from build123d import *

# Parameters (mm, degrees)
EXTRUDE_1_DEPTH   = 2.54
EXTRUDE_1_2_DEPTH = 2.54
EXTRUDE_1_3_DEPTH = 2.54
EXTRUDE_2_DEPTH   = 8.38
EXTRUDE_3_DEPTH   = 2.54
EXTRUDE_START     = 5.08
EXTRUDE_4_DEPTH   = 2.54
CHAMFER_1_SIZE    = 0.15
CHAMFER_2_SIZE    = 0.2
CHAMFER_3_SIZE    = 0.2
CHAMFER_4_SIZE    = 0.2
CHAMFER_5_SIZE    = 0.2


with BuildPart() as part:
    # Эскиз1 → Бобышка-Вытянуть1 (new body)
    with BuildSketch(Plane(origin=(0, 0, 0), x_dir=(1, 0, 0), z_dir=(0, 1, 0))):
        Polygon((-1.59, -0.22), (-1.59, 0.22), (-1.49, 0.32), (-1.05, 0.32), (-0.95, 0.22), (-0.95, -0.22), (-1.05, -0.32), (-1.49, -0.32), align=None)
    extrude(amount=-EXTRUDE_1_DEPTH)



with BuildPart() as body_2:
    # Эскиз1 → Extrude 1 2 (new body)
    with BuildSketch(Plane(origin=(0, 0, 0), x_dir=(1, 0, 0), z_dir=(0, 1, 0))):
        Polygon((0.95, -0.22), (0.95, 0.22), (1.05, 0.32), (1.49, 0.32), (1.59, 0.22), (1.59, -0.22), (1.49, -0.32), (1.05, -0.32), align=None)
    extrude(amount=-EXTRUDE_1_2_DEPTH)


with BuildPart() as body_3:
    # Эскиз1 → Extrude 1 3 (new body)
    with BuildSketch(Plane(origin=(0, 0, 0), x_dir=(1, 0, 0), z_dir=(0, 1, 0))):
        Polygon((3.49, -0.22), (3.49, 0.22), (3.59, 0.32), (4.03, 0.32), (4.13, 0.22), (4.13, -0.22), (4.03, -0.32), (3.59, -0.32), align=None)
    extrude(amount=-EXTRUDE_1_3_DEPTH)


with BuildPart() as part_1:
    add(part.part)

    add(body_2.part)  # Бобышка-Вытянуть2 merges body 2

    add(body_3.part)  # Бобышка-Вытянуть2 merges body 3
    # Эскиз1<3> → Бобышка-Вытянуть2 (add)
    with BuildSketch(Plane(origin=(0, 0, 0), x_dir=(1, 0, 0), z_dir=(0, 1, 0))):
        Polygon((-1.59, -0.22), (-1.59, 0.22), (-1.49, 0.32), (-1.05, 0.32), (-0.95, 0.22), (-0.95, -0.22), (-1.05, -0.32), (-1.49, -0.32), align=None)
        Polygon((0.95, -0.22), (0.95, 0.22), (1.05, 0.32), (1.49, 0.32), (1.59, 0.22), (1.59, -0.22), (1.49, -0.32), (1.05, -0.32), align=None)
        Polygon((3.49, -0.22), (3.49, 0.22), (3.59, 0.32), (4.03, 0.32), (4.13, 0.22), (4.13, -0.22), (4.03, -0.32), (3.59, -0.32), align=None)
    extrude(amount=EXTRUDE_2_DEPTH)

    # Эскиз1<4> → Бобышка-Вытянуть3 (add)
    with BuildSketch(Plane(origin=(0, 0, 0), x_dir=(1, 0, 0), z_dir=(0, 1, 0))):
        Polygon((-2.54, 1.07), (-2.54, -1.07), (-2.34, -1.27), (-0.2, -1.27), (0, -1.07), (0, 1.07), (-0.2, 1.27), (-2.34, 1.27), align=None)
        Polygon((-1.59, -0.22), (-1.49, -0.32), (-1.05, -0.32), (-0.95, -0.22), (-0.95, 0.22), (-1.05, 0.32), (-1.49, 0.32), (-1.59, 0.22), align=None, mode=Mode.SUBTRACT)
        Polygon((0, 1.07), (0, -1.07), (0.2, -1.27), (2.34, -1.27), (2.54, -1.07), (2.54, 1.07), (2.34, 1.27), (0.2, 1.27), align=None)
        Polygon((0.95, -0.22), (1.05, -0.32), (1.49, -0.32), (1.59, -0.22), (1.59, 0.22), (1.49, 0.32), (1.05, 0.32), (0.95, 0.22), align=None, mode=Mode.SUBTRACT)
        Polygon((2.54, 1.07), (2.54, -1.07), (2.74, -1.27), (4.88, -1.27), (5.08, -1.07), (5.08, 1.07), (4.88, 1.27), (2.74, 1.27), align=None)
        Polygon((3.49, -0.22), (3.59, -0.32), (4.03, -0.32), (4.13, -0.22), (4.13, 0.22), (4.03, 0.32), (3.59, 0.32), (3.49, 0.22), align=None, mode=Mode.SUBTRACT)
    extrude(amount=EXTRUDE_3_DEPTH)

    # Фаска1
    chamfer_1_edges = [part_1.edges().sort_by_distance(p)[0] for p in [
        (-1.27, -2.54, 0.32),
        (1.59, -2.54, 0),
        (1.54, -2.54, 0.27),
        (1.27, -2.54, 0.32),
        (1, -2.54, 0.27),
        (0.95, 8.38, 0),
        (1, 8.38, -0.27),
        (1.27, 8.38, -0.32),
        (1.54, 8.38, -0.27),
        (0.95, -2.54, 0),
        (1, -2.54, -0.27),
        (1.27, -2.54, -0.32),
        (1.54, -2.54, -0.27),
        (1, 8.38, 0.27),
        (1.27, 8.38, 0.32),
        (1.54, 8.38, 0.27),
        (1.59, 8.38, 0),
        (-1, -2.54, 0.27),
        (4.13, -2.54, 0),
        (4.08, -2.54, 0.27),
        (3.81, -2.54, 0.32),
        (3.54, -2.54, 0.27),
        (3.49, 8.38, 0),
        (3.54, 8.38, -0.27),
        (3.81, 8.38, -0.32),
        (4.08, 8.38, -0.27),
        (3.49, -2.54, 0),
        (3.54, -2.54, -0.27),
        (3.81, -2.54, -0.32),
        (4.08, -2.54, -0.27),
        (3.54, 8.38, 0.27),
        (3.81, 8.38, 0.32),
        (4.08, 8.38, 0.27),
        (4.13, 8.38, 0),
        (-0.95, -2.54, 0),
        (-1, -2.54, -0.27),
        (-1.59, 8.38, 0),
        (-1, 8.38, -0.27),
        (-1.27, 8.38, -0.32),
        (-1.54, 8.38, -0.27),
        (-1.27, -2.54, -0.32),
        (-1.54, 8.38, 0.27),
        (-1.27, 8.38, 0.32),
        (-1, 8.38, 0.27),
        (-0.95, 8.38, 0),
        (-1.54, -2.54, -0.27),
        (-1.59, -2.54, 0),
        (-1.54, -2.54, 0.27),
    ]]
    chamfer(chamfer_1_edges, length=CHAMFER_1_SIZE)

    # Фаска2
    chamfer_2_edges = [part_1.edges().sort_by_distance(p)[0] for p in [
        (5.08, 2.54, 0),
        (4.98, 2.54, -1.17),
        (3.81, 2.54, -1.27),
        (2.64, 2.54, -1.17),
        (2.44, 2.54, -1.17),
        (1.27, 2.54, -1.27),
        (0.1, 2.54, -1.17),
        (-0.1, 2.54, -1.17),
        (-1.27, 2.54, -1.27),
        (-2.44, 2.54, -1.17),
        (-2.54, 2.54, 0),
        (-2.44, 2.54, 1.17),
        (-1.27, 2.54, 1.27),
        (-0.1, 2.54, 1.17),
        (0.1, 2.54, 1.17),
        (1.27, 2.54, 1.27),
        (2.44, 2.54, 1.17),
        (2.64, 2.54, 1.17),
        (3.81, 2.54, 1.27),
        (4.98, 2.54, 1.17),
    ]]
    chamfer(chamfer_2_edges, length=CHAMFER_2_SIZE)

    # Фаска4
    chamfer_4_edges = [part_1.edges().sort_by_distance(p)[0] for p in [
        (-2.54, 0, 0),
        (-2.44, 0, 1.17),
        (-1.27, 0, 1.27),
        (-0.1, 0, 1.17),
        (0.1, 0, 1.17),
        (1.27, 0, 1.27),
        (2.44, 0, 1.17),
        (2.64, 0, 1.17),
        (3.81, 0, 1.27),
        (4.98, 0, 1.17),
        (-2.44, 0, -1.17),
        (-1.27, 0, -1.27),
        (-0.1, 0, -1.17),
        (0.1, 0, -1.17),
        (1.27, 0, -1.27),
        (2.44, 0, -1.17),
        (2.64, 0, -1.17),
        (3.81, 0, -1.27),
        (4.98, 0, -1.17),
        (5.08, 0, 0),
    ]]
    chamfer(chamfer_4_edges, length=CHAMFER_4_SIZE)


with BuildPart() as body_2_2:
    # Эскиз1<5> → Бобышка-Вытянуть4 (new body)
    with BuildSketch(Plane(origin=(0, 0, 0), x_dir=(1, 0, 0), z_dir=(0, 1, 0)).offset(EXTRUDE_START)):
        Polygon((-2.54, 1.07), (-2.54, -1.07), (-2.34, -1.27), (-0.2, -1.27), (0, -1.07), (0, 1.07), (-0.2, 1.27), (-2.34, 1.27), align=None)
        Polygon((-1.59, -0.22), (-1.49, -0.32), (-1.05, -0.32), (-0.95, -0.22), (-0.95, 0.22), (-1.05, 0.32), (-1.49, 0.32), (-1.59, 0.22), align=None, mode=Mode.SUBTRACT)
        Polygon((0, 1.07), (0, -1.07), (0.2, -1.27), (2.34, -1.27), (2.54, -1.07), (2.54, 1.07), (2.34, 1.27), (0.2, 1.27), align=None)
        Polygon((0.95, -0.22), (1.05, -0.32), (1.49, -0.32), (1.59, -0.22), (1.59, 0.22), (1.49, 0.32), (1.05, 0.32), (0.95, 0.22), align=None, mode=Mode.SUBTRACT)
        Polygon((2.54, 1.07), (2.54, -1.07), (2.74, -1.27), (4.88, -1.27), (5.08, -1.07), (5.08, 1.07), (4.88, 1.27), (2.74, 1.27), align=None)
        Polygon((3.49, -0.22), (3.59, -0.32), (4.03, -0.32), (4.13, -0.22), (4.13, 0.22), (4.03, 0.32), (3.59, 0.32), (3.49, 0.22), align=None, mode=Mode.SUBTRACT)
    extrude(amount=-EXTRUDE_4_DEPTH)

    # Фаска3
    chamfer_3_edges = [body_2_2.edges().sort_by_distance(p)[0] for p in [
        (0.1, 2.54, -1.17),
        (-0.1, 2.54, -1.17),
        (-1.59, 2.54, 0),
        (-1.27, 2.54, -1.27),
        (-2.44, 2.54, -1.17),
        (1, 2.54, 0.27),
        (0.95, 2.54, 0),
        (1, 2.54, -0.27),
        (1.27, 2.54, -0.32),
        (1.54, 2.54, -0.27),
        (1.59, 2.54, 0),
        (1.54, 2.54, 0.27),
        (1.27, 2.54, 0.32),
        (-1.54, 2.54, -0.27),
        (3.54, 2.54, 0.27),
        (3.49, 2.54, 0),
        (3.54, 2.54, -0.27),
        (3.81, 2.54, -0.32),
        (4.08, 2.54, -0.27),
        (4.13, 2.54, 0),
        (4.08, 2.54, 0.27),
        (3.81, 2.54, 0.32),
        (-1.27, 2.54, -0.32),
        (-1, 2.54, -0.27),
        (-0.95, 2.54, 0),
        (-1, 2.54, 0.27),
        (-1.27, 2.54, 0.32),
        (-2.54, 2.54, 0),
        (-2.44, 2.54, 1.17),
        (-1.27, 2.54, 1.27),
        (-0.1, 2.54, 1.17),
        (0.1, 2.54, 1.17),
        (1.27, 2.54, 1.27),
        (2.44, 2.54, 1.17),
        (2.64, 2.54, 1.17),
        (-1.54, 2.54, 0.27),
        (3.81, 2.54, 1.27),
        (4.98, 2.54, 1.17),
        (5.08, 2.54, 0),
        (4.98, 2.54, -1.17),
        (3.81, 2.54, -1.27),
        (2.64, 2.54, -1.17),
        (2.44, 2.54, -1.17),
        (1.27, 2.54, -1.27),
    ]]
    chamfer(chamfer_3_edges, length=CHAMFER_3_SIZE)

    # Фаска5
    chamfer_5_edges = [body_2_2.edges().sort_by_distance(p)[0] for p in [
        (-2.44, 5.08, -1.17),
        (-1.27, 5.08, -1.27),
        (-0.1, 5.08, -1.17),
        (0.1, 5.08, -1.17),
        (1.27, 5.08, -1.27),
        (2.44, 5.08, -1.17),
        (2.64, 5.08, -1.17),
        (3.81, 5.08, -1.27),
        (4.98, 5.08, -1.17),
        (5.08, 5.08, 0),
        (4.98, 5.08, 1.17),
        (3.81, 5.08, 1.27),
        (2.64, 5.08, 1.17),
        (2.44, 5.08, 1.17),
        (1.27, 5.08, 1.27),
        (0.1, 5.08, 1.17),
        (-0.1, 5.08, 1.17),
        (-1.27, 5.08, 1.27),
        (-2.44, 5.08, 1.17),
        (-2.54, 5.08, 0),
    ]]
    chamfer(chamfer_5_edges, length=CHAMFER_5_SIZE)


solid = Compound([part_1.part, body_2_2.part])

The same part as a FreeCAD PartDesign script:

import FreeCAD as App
import Part
import Sketcher
from FreeCAD import Vector
Q = App.Units.Quantity


def edges_at(feature, points):
    """Names of the edges that pass closest to the given points."""
    edges = feature.Shape.Edges
    near = lambda p: min(range(len(edges)), key=lambda i: edges[i].distToShape(Part.Vertex(*p))[0])
    return sorted({f"Edge{near(p) + 1}" for p in points})


def add_polygon(sketch, points):
    """Adds a closed chain of lines whose ends are joined by coincident constraints."""
    first, n = sketch.GeometryCount, len(points)
    for a, b in zip(points, points[1:] + points[:1]):
        sketch.addGeometry(Part.LineSegment(App.Vector(*a, 0), App.Vector(*b, 0)), False)
    for i in range(n):
        sketch.addConstraint(Sketcher.Constraint("Coincident", first + i, 2, first + (i + 1) % n, 1))

doc = App.newDocument("Part")
body = doc.addObject("PartDesign::Body", "Body")

sketch1 = body.newObject("Sketcher::SketchObject", "Sketch")
sketch1.AttachmentSupport = (doc.getObject("XZ_Plane"), [""])
sketch1.MapMode = "FlatFace"
add_polygon(sketch1, [(-1.59, -0.22), (-1.59, 0.22), (-1.49, 0.32), (-1.05, 0.32), (-0.95, 0.22), (-0.95, -0.22), (-1.05, -0.32), (-1.49, -0.32)])
sketch1.addConstraint(Sketcher.Constraint("Vertical", 0))
sketch1.addConstraint(Sketcher.Constraint("Horizontal", 2))
sketch1.addConstraint(Sketcher.Constraint("Vertical", 4))
sketch1.addConstraint(Sketcher.Constraint("Horizontal", 6))
sketch1.addConstraint(Sketcher.Constraint("Symmetric", 2, 2, 5, 2, -1))
sketch1.addConstraint(Sketcher.Constraint("Perpendicular", 1, 3))
sketch1.addConstraint(Sketcher.Constraint("Perpendicular", 3, 5))
sketch1.addConstraint(Sketcher.Constraint("Perpendicular", 5, 7))
sketch1.addConstraint(Sketcher.Constraint("Horizontal", 0, 2, 3, 2))
sketch1.addConstraint(Sketcher.Constraint("Horizontal", 4, 2, 7, 2))
sketch1.addConstraint(Sketcher.Constraint("Vertical", 1, 2, 6, 2))
sketch1.addConstraint(Sketcher.Constraint("Equal", 6, 0))
sketch1.addConstraint(Sketcher.Constraint("DistanceX", 2, 1, 2, 2, Q("0.44 mm")))
sketch1.addConstraint(Sketcher.Constraint("DistanceX", 0, 2, 1, 2, Q("0.1 mm")))
sketch1.addConstraint(Sketcher.Constraint("DistanceX", 0, 2, -1, 1, Q("1.59 mm")))
pad1 = body.newObject("PartDesign::Pad", "Pad")
pad1.Profile = sketch1
pad1.Length = 2.54
body2 = doc.addObject("PartDesign::Body", "Body001")

sketch2 = body2.newObject("Sketcher::SketchObject", "Sketch001")
sketch2.AttachmentSupport = (doc.getObject("XZ_Plane001"), [""])
sketch2.MapMode = "FlatFace"
add_polygon(sketch2, [(0.95, -0.22), (0.95, 0.22), (1.05, 0.32), (1.49, 0.32), (1.59, 0.22), (1.59, -0.22), (1.49, -0.32), (1.05, -0.32)])
sketch2.addConstraint(Sketcher.Constraint("Vertical", 0))
sketch2.addConstraint(Sketcher.Constraint("Horizontal", 2))
sketch2.addConstraint(Sketcher.Constraint("Vertical", 4))
sketch2.addConstraint(Sketcher.Constraint("Horizontal", 6))
sketch2.addConstraint(Sketcher.Constraint("Symmetric", 2, 2, 5, 2, -1))
sketch2.addConstraint(Sketcher.Constraint("Perpendicular", 1, 3))
sketch2.addConstraint(Sketcher.Constraint("Perpendicular", 3, 5))
sketch2.addConstraint(Sketcher.Constraint("Perpendicular", 5, 7))
sketch2.addConstraint(Sketcher.Constraint("Horizontal", 0, 2, 3, 2))
sketch2.addConstraint(Sketcher.Constraint("Horizontal", 4, 2, 7, 2))
sketch2.addConstraint(Sketcher.Constraint("Vertical", 1, 2, 6, 2))
sketch2.addConstraint(Sketcher.Constraint("Equal", 6, 0))
sketch2.addConstraint(Sketcher.Constraint("DistanceX", 2, 1, 2, 2, Q("0.44 mm")))
sketch2.addConstraint(Sketcher.Constraint("DistanceX", 0, 2, 1, 2, Q("0.1 mm")))
sketch2.addConstraint(Sketcher.Constraint("DistanceX", -1, 1, 0, 2, Q("0.95 mm")))
pad2 = body2.newObject("PartDesign::Pad", "Pad001")
pad2.Profile = sketch2
pad2.Length = 2.54
body3 = doc.addObject("PartDesign::Body", "Body002")

sketch3 = body3.newObject("Sketcher::SketchObject", "Sketch002")
sketch3.AttachmentSupport = (doc.getObject("XZ_Plane002"), [""])
sketch3.MapMode = "FlatFace"
add_polygon(sketch3, [(3.49, -0.22), (3.49, 0.22), (3.59, 0.32), (4.03, 0.32), (4.13, 0.22), (4.13, -0.22), (4.03, -0.32), (3.59, -0.32)])
sketch3.addConstraint(Sketcher.Constraint("Vertical", 0))
sketch3.addConstraint(Sketcher.Constraint("Horizontal", 2))
sketch3.addConstraint(Sketcher.Constraint("Vertical", 4))
sketch3.addConstraint(Sketcher.Constraint("Horizontal", 6))
sketch3.addConstraint(Sketcher.Constraint("Symmetric", 2, 2, 5, 2, -1))
sketch3.addConstraint(Sketcher.Constraint("Perpendicular", 1, 3))
sketch3.addConstraint(Sketcher.Constraint("Perpendicular", 3, 5))
sketch3.addConstraint(Sketcher.Constraint("Perpendicular", 5, 7))
sketch3.addConstraint(Sketcher.Constraint("Horizontal", 0, 2, 3, 2))
sketch3.addConstraint(Sketcher.Constraint("Horizontal", 4, 2, 7, 2))
sketch3.addConstraint(Sketcher.Constraint("Vertical", 1, 2, 6, 2))
sketch3.addConstraint(Sketcher.Constraint("Equal", 6, 0))
sketch3.addConstraint(Sketcher.Constraint("DistanceX", 2, 1, 2, 2, Q("0.44 mm")))
sketch3.addConstraint(Sketcher.Constraint("DistanceX", 0, 2, 1, 2, Q("0.1 mm")))
sketch3.addConstraint(Sketcher.Constraint("DistanceX", -1, 1, 0, 2, Q("3.49 mm")))
pad3 = body3.newObject("PartDesign::Pad", "Pad002")
pad3.Profile = sketch3
pad3.Length = 2.54
body.AllowCompound = True
doc.recompute()

boolean = body.newObject("PartDesign::Boolean", "Boolean")
boolean.Type = "Fuse"
boolean.addObjects([body2])
doc.recompute()

boolean2 = body.newObject("PartDesign::Boolean", "Boolean001")
boolean2.Type = "Fuse"
boolean2.addObjects([body3])

sketch4 = body.newObject("Sketcher::SketchObject", "Sketch003")
sketch4.AttachmentSupport = (doc.getObject("XZ_Plane"), [""])
sketch4.MapMode = "FlatFace"
add_polygon(sketch4, [(-1.59, -0.22), (-1.59, 0.22), (-1.49, 0.32), (-1.05, 0.32), (-0.95, 0.22), (-0.95, -0.22), (-1.05, -0.32), (-1.49, -0.32)])
add_polygon(sketch4, [(0.95, -0.22), (0.95, 0.22), (1.05, 0.32), (1.49, 0.32), (1.59, 0.22), (1.59, -0.22), (1.49, -0.32), (1.05, -0.32)])
add_polygon(sketch4, [(3.49, -0.22), (3.49, 0.22), (3.59, 0.32), (4.03, 0.32), (4.13, 0.22), (4.13, -0.22), (4.03, -0.32), (3.59, -0.32)])
sketch4.addConstraint(Sketcher.Constraint("Vertical", 0))
sketch4.addConstraint(Sketcher.Constraint("Horizontal", 2))
sketch4.addConstraint(Sketcher.Constraint("Vertical", 4))
sketch4.addConstraint(Sketcher.Constraint("Horizontal", 6))
sketch4.addConstraint(Sketcher.Constraint("Vertical", 8))
sketch4.addConstraint(Sketcher.Constraint("Horizontal", 10))
sketch4.addConstraint(Sketcher.Constraint("Vertical", 12))
sketch4.addConstraint(Sketcher.Constraint("Horizontal", 14))
sketch4.addConstraint(Sketcher.Constraint("Vertical", 16))
sketch4.addConstraint(Sketcher.Constraint("Horizontal", 18))
sketch4.addConstraint(Sketcher.Constraint("Vertical", 20))
sketch4.addConstraint(Sketcher.Constraint("Horizontal", 22))
sketch4.addConstraint(Sketcher.Constraint("Symmetric", 4, 2, 8, 2, -1, 1))
sketch4.addConstraint(Sketcher.Constraint("Symmetric", 5, 2, 9, 2, -1, 1))
sketch4.addConstraint(Sketcher.Constraint("Symmetric", 7, 2, 11, 2, -1, 1))
sketch4.addConstraint(Sketcher.Constraint("Symmetric", 1, 2, 13, 2, -1, 1))
sketch4.addConstraint(Sketcher.Constraint("Symmetric", 2, 2, 9, 2, -2))
sketch4.addConstraint(Sketcher.Constraint("Symmetric", 18, 2, 21, 2, -1))
sketch4.addConstraint(Sketcher.Constraint("Perpendicular", 1, 3))
sketch4.addConstraint(Sketcher.Constraint("Perpendicular", 3, 5))
sketch4.addConstraint(Sketcher.Constraint("Perpendicular", 5, 7))
sketch4.addConstraint(Sketcher.Constraint("Perpendicular", 9, 11))
sketch4.addConstraint(Sketcher.Constraint("Perpendicular", 11, 13))
sketch4.addConstraint(Sketcher.Constraint("Perpendicular", 13, 15))
sketch4.addConstraint(Sketcher.Constraint("Perpendicular", 15, 17))
sketch4.addConstraint(Sketcher.Constraint("Perpendicular", 17, 19))
sketch4.addConstraint(Sketcher.Constraint("Perpendicular", 19, 21))
sketch4.addConstraint(Sketcher.Constraint("Perpendicular", 21, 23))
sketch4.addConstraint(Sketcher.Constraint("Horizontal", 0, 2, 3, 2))
sketch4.addConstraint(Sketcher.Constraint("Horizontal", 4, 2, 7, 2))
sketch4.addConstraint(Sketcher.Constraint("Horizontal", 3, 2, 8, 2))
sketch4.addConstraint(Sketcher.Constraint("Horizontal", 12, 2, 15, 2))
sketch4.addConstraint(Sketcher.Constraint("Horizontal", 11, 2, 16, 2))
sketch4.addConstraint(Sketcher.Constraint("Horizontal", 10, 2, 17, 2))
sketch4.addConstraint(Sketcher.Constraint("Horizontal", 16, 2, 19, 2))
sketch4.addConstraint(Sketcher.Constraint("Horizontal", 20, 2, 23, 2))
sketch4.addConstraint(Sketcher.Constraint("Equal", 14, 18))
sketch4.addConstraint(Sketcher.Constraint("Equal", 22, 0))
sketch4.addConstraint(Sketcher.Constraint("DistanceX", 2, 2, 8, 2, Q("2 mm")))
sketch4.addConstraint(Sketcher.Constraint("DistanceX", 10, 2, 16, 2, Q("2 mm")))
sketch4.addConstraint(Sketcher.Constraint("DistanceX", 2, 1, 2, 2, Q("0.44 mm")))
sketch4.addConstraint(Sketcher.Constraint("DistanceX", 0, 2, 1, 2, Q("0.1 mm")))
pad4 = body.newObject("PartDesign::Pad", "Pad003")
pad4.Profile = sketch4
pad4.Length = 8.38
pad4.Reversed = True

sketch5 = body.newObject("Sketcher::SketchObject", "Sketch004")
sketch5.AttachmentSupport = (doc.getObject("XZ_Plane"), [""])
sketch5.MapMode = "FlatFace"
add_polygon(sketch5, [(-2.54, -1.07), (-2.54, 1.07), (-2.34, 1.27), (-0.2, 1.27), (0, 1.07), (0.2, 1.27), (2.34, 1.27), (2.54, 1.07), (2.74, 1.27), (4.88, 1.27), (5.08, 1.07), (5.08, -1.07), (4.88, -1.27), (2.74, -1.27), (2.54, -1.07), (2.34, -1.27), (0.2, -1.27), (0, -1.07), (-0.2, -1.27), (-2.34, -1.27)])
add_polygon(sketch5, [(-1.49, 0.32), (-1.59, 0.22), (-1.59, -0.22), (-1.49, -0.32), (-1.05, -0.32), (-0.95, -0.22), (-0.95, 0.22), (-1.05, 0.32)])
add_polygon(sketch5, [(1.05, 0.32), (0.95, 0.22), (0.95, -0.22), (1.05, -0.32), (1.49, -0.32), (1.59, -0.22), (1.59, 0.22), (1.49, 0.32)])
add_polygon(sketch5, [(3.59, 0.32), (3.49, 0.22), (3.49, -0.22), (3.59, -0.32), (4.03, -0.32), (4.13, -0.22), (4.13, 0.22), (4.03, 0.32)])
sketch5.addConstraint(Sketcher.Constraint("Vertical", 0))
sketch5.addConstraint(Sketcher.Constraint("Horizontal", 2))
sketch5.addConstraint(Sketcher.Constraint("Horizontal", 5))
sketch5.addConstraint(Sketcher.Constraint("Horizontal", 8))
sketch5.addConstraint(Sketcher.Constraint("Vertical", 10))
sketch5.addConstraint(Sketcher.Constraint("Horizontal", 12))
sketch5.addConstraint(Sketcher.Constraint("Horizontal", 15))
sketch5.addConstraint(Sketcher.Constraint("Horizontal", 18))
sketch5.addConstraint(Sketcher.Constraint("Vertical", 21))
sketch5.addConstraint(Sketcher.Constraint("Horizontal", 23))
sketch5.addConstraint(Sketcher.Constraint("Vertical", 25))
sketch5.addConstraint(Sketcher.Constraint("Horizontal", 27))
sketch5.addConstraint(Sketcher.Constraint("Vertical", 29))
sketch5.addConstraint(Sketcher.Constraint("Horizontal", 31))
sketch5.addConstraint(Sketcher.Constraint("Vertical", 33))
sketch5.addConstraint(Sketcher.Constraint("Horizontal", 35))
sketch5.addConstraint(Sketcher.Constraint("Vertical", 37))
sketch5.addConstraint(Sketcher.Constraint("Horizontal", 39))
sketch5.addConstraint(Sketcher.Constraint("Vertical", 41))
sketch5.addConstraint(Sketcher.Constraint("Horizontal", 43))
sketch5.addConstraint(Sketcher.Constraint("Symmetric", 0, 2, 13, 2, -1, 1))
sketch5.addConstraint(Sketcher.Constraint("Symmetric", 1, 2, 14, 2, -1, 1))
sketch5.addConstraint(Sketcher.Constraint("Symmetric", 3, 2, 16, 2, -1, 1))
sketch5.addConstraint(Sketcher.Constraint("Symmetric", 4, 2, 17, 2, -1, 1))
sketch5.addConstraint(Sketcher.Constraint("Symmetric", 6, 2, 19, 2, -1, 1))
sketch5.addConstraint(Sketcher.Constraint("Symmetric", 24, 2, 28, 2, -1, 1))
sketch5.addConstraint(Sketcher.Constraint("Symmetric", 26, 2, 30, 2, -1, 1))
sketch5.addConstraint(Sketcher.Constraint("Symmetric", 20, 2, 32, 2, -1, 1))
sketch5.addConstraint(Sketcher.Constraint("Symmetric", 22, 2, 34, 2, -1, 1))
sketch5.addConstraint(Sketcher.Constraint("Symmetric", 2, 2, 4, 2, -2))
sketch5.addConstraint(Sketcher.Constraint("Symmetric", 23, 2, 30, 2, -2))
sketch5.addConstraint(Sketcher.Constraint("Symmetric", 8, 2, 11, 2, -1))
sketch5.addConstraint(Sketcher.Constraint("Symmetric", 39, 2, 42, 2, -1))
sketch5.addConstraint(Sketcher.Constraint("PointOnObject", 3, 2, -2))
sketch5.addConstraint(Sketcher.Constraint("Perpendicular", 1, 3))
sketch5.addConstraint(Sketcher.Constraint("Perpendicular", 3, 4))
sketch5.addConstraint(Sketcher.Constraint("Perpendicular", 4, 6))
sketch5.addConstraint(Sketcher.Constraint("Perpendicular", 6, 7))
sketch5.addConstraint(Sketcher.Constraint("Perpendicular", 7, 9))
sketch5.addConstraint(Sketcher.Constraint("Perpendicular", 9, 11))
sketch5.addConstraint(Sketcher.Constraint("Perpendicular", 11, 13))
sketch5.addConstraint(Sketcher.Constraint("Perpendicular", 14, 16))
sketch5.addConstraint(Sketcher.Constraint("Perpendicular", 17, 19))
sketch5.addConstraint(Sketcher.Constraint("Perpendicular", 19, 20))
sketch5.addConstraint(Sketcher.Constraint("Perpendicular", 20, 22))
sketch5.addConstraint(Sketcher.Constraint("Perpendicular", 22, 24))
sketch5.addConstraint(Sketcher.Constraint("Perpendicular", 24, 26))
sketch5.addConstraint(Sketcher.Constraint("Perpendicular", 26, 28))
sketch5.addConstraint(Sketcher.Constraint("Perpendicular", 28, 30))
sketch5.addConstraint(Sketcher.Constraint("Perpendicular", 30, 32))
sketch5.addConstraint(Sketcher.Constraint("Perpendicular", 32, 34))
sketch5.addConstraint(Sketcher.Constraint("Perpendicular", 34, 36))
sketch5.addConstraint(Sketcher.Constraint("Perpendicular", 36, 38))
sketch5.addConstraint(Sketcher.Constraint("Perpendicular", 38, 40))
sketch5.addConstraint(Sketcher.Constraint("Perpendicular", 40, 42))
sketch5.addConstraint(Sketcher.Constraint("Horizontal", 0, 2, 3, 2))
sketch5.addConstraint(Sketcher.Constraint("Horizontal", 3, 2, 6, 2))
sketch5.addConstraint(Sketcher.Constraint("Horizontal", 5, 2, 7, 2))
sketch5.addConstraint(Sketcher.Constraint("Horizontal", 6, 2, 9, 2))
sketch5.addConstraint(Sketcher.Constraint("Horizontal", 21, 2, 24, 2))
sketch5.addConstraint(Sketcher.Constraint("Horizontal", 20, 2, 25, 2))
sketch5.addConstraint(Sketcher.Constraint("Horizontal", 33, 2, 36, 2))
sketch5.addConstraint(Sketcher.Constraint("Horizontal", 32, 2, 37, 2))
sketch5.addConstraint(Sketcher.Constraint("Horizontal", 31, 2, 38, 2))
sketch5.addConstraint(Sketcher.Constraint("Horizontal", 37, 2, 40, 2))
sketch5.addConstraint(Sketcher.Constraint("Equal", 5, 8))
sketch5.addConstraint(Sketcher.Constraint("Equal", 35, 39))
sketch5.addConstraint(Sketcher.Constraint("Equal", 18, 0))
sketch5.addConstraint(Sketcher.Constraint("Equal", 43, 21))
sketch5.addConstraint(Sketcher.Constraint("DistanceX", 2, 1, 2, 2, Q("2.14 mm")))
sketch5.addConstraint(Sketcher.Constraint("DistanceX", 23, 1, 23, 2, Q("0.44 mm")))
sketch5.addConstraint(Sketcher.Constraint("DistanceX", 2, 2, -1, 1, Q("0.2 mm")))
sketch5.addConstraint(Sketcher.Constraint("DistanceX", 21, 2, 22, 2, Q("0.1 mm")))
sketch5.addConstraint(Sketcher.Constraint("DistanceX", 20, 2, -1, 1, Q("1.59 mm")))
sketch5.addConstraint(Sketcher.Constraint("DistanceX", -1, 1, 36, 2, Q("3.49 mm")))
pad5 = body.newObject("PartDesign::Pad", "Pad004")
pad5.Profile = sketch5
pad5.Length = 2.54
pad5.Reversed = True
doc.recompute()

chamfer = body.newObject("PartDesign::Chamfer", "Chamfer")
chamfer.Base = (pad5, edges_at(pad5, [
    (-1.27, -2.54, 0.32),
    (1.59, -2.54, 0),
    (1.54, -2.54, 0.27),
    (1.27, -2.54, 0.32),
    (1, -2.54, 0.27),
    (0.95, 8.38, 0),
    (1, 8.38, -0.27),
    (1.27, 8.38, -0.32),
    (1.54, 8.38, -0.27),
    (0.95, -2.54, 0),
    (1, -2.54, -0.27),
    (1.27, -2.54, -0.32),
    (1.54, -2.54, -0.27),
    (1, 8.38, 0.27),
    (1.27, 8.38, 0.32),
    (1.54, 8.38, 0.27),
    (1.59, 8.38, 0),
    (-1, -2.54, 0.27),
    (4.13, -2.54, 0),
    (4.08, -2.54, 0.27),
    (3.81, -2.54, 0.32),
    (3.54, -2.54, 0.27),
    (3.49, 8.38, 0),
    (3.54, 8.38, -0.27),
    (3.81, 8.38, -0.32),
    (4.08, 8.38, -0.27),
    (3.49, -2.54, 0),
    (3.54, -2.54, -0.27),
    (3.81, -2.54, -0.32),
    (4.08, -2.54, -0.27),
    (3.54, 8.38, 0.27),
    (3.81, 8.38, 0.32),
    (4.08, 8.38, 0.27),
    (4.13, 8.38, 0),
    (-0.95, -2.54, 0),
    (-1, -2.54, -0.27),
    (-1.59, 8.38, 0),
    (-1, 8.38, -0.27),
    (-1.27, 8.38, -0.32),
    (-1.54, 8.38, -0.27),
    (-1.27, -2.54, -0.32),
    (-1.54, 8.38, 0.27),
    (-1.27, 8.38, 0.32),
    (-1, 8.38, 0.27),
    (-0.95, 8.38, 0),
    (-1.54, -2.54, -0.27),
    (-1.59, -2.54, 0),
    (-1.54, -2.54, 0.27),
]))
chamfer.Size = 0.15
doc.recompute()

chamfer2 = body.newObject("PartDesign::Chamfer", "Chamfer001")
chamfer2.Base = (chamfer, edges_at(chamfer, [
    (5.08, 2.54, 0),
    (4.98, 2.54, -1.17),
    (3.81, 2.54, -1.27),
    (2.64, 2.54, -1.17),
    (2.44, 2.54, -1.17),
    (1.27, 2.54, -1.27),
    (0.1, 2.54, -1.17),
    (-0.1, 2.54, -1.17),
    (-1.27, 2.54, -1.27),
    (-2.44, 2.54, -1.17),
    (-2.54, 2.54, 0),
    (-2.44, 2.54, 1.17),
    (-1.27, 2.54, 1.27),
    (-0.1, 2.54, 1.17),
    (0.1, 2.54, 1.17),
    (1.27, 2.54, 1.27),
    (2.44, 2.54, 1.17),
    (2.64, 2.54, 1.17),
    (3.81, 2.54, 1.27),
    (4.98, 2.54, 1.17),
]))
chamfer2.Size = 0.2
doc.recompute()

chamfer3 = body.newObject("PartDesign::Chamfer", "Chamfer002")
chamfer3.Base = (chamfer2, edges_at(chamfer2, [
    (-2.54, 0, 0),
    (-2.44, 0, 1.17),
    (-1.27, 0, 1.27),
    (-0.1, 0, 1.17),
    (0.1, 0, 1.17),
    (1.27, 0, 1.27),
    (2.44, 0, 1.17),
    (2.64, 0, 1.17),
    (3.81, 0, 1.27),
    (4.98, 0, 1.17),
    (-2.44, 0, -1.17),
    (-1.27, 0, -1.27),
    (-0.1, 0, -1.17),
    (0.1, 0, -1.17),
    (1.27, 0, -1.27),
    (2.44, 0, -1.17),
    (2.64, 0, -1.17),
    (3.81, 0, -1.27),
    (4.98, 0, -1.17),
    (5.08, 0, 0),
]))
chamfer3.Size = 0.2
body4 = doc.addObject("PartDesign::Body", "Body003")

sketch6 = body4.newObject("Sketcher::SketchObject", "Sketch005")
sketch6.AttachmentSupport = (doc.getObject("XZ_Plane003"), [""])
sketch6.MapMode = "FlatFace"
sketch6.AttachmentOffset = App.Placement(Vector(0, 0, -5.08), App.Rotation())
add_polygon(sketch6, [(-2.54, -1.07), (-2.54, 1.07), (-2.34, 1.27), (-0.2, 1.27), (0, 1.07), (0.2, 1.27), (2.34, 1.27), (2.54, 1.07), (2.74, 1.27), (4.88, 1.27), (5.08, 1.07), (5.08, -1.07), (4.88, -1.27), (2.74, -1.27), (2.54, -1.07), (2.34, -1.27), (0.2, -1.27), (0, -1.07), (-0.2, -1.27), (-2.34, -1.27)])
add_polygon(sketch6, [(-1.49, 0.32), (-1.59, 0.22), (-1.59, -0.22), (-1.49, -0.32), (-1.05, -0.32), (-0.95, -0.22), (-0.95, 0.22), (-1.05, 0.32)])
add_polygon(sketch6, [(1.05, 0.32), (0.95, 0.22), (0.95, -0.22), (1.05, -0.32), (1.49, -0.32), (1.59, -0.22), (1.59, 0.22), (1.49, 0.32)])
add_polygon(sketch6, [(3.59, 0.32), (3.49, 0.22), (3.49, -0.22), (3.59, -0.32), (4.03, -0.32), (4.13, -0.22), (4.13, 0.22), (4.03, 0.32)])
sketch6.addConstraint(Sketcher.Constraint("Vertical", 0))
sketch6.addConstraint(Sketcher.Constraint("Horizontal", 2))
sketch6.addConstraint(Sketcher.Constraint("Horizontal", 5))
sketch6.addConstraint(Sketcher.Constraint("Horizontal", 8))
sketch6.addConstraint(Sketcher.Constraint("Vertical", 10))
sketch6.addConstraint(Sketcher.Constraint("Horizontal", 12))
sketch6.addConstraint(Sketcher.Constraint("Horizontal", 15))
sketch6.addConstraint(Sketcher.Constraint("Horizontal", 18))
sketch6.addConstraint(Sketcher.Constraint("Vertical", 21))
sketch6.addConstraint(Sketcher.Constraint("Horizontal", 23))
sketch6.addConstraint(Sketcher.Constraint("Vertical", 25))
sketch6.addConstraint(Sketcher.Constraint("Horizontal", 27))
sketch6.addConstraint(Sketcher.Constraint("Vertical", 29))
sketch6.addConstraint(Sketcher.Constraint("Horizontal", 31))
sketch6.addConstraint(Sketcher.Constraint("Vertical", 33))
sketch6.addConstraint(Sketcher.Constraint("Horizontal", 35))
sketch6.addConstraint(Sketcher.Constraint("Vertical", 37))
sketch6.addConstraint(Sketcher.Constraint("Horizontal", 39))
sketch6.addConstraint(Sketcher.Constraint("Vertical", 41))
sketch6.addConstraint(Sketcher.Constraint("Horizontal", 43))
sketch6.addConstraint(Sketcher.Constraint("Symmetric", 0, 2, 13, 2, -1, 1))
sketch6.addConstraint(Sketcher.Constraint("Symmetric", 1, 2, 14, 2, -1, 1))
sketch6.addConstraint(Sketcher.Constraint("Symmetric", 3, 2, 16, 2, -1, 1))
sketch6.addConstraint(Sketcher.Constraint("Symmetric", 4, 2, 17, 2, -1, 1))
sketch6.addConstraint(Sketcher.Constraint("Symmetric", 6, 2, 19, 2, -1, 1))
sketch6.addConstraint(Sketcher.Constraint("Symmetric", 24, 2, 28, 2, -1, 1))
sketch6.addConstraint(Sketcher.Constraint("Symmetric", 26, 2, 30, 2, -1, 1))
sketch6.addConstraint(Sketcher.Constraint("Symmetric", 20, 2, 32, 2, -1, 1))
sketch6.addConstraint(Sketcher.Constraint("Symmetric", 22, 2, 34, 2, -1, 1))
sketch6.addConstraint(Sketcher.Constraint("Symmetric", 2, 2, 4, 2, -2))
sketch6.addConstraint(Sketcher.Constraint("Symmetric", 23, 2, 30, 2, -2))
sketch6.addConstraint(Sketcher.Constraint("Symmetric", 8, 2, 11, 2, -1))
sketch6.addConstraint(Sketcher.Constraint("Symmetric", 39, 2, 42, 2, -1))
sketch6.addConstraint(Sketcher.Constraint("PointOnObject", 3, 2, -2))
sketch6.addConstraint(Sketcher.Constraint("Perpendicular", 1, 3))
sketch6.addConstraint(Sketcher.Constraint("Perpendicular", 3, 4))
sketch6.addConstraint(Sketcher.Constraint("Perpendicular", 4, 6))
sketch6.addConstraint(Sketcher.Constraint("Perpendicular", 6, 7))
sketch6.addConstraint(Sketcher.Constraint("Perpendicular", 7, 9))
sketch6.addConstraint(Sketcher.Constraint("Perpendicular", 9, 11))
sketch6.addConstraint(Sketcher.Constraint("Perpendicular", 11, 13))
sketch6.addConstraint(Sketcher.Constraint("Perpendicular", 14, 16))
sketch6.addConstraint(Sketcher.Constraint("Perpendicular", 17, 19))
sketch6.addConstraint(Sketcher.Constraint("Perpendicular", 19, 20))
sketch6.addConstraint(Sketcher.Constraint("Perpendicular", 20, 22))
sketch6.addConstraint(Sketcher.Constraint("Perpendicular", 22, 24))
sketch6.addConstraint(Sketcher.Constraint("Perpendicular", 24, 26))
sketch6.addConstraint(Sketcher.Constraint("Perpendicular", 26, 28))
sketch6.addConstraint(Sketcher.Constraint("Perpendicular", 28, 30))
sketch6.addConstraint(Sketcher.Constraint("Perpendicular", 30, 32))
sketch6.addConstraint(Sketcher.Constraint("Perpendicular", 32, 34))
sketch6.addConstraint(Sketcher.Constraint("Perpendicular", 34, 36))
sketch6.addConstraint(Sketcher.Constraint("Perpendicular", 36, 38))
sketch6.addConstraint(Sketcher.Constraint("Perpendicular", 38, 40))
sketch6.addConstraint(Sketcher.Constraint("Perpendicular", 40, 42))
sketch6.addConstraint(Sketcher.Constraint("Horizontal", 0, 2, 3, 2))
sketch6.addConstraint(Sketcher.Constraint("Horizontal", 3, 2, 6, 2))
sketch6.addConstraint(Sketcher.Constraint("Horizontal", 5, 2, 7, 2))
sketch6.addConstraint(Sketcher.Constraint("Horizontal", 6, 2, 9, 2))
sketch6.addConstraint(Sketcher.Constraint("Horizontal", 21, 2, 24, 2))
sketch6.addConstraint(Sketcher.Constraint("Horizontal", 20, 2, 25, 2))
sketch6.addConstraint(Sketcher.Constraint("Horizontal", 33, 2, 36, 2))
sketch6.addConstraint(Sketcher.Constraint("Horizontal", 32, 2, 37, 2))
sketch6.addConstraint(Sketcher.Constraint("Horizontal", 31, 2, 38, 2))
sketch6.addConstraint(Sketcher.Constraint("Horizontal", 37, 2, 40, 2))
sketch6.addConstraint(Sketcher.Constraint("Equal", 5, 8))
sketch6.addConstraint(Sketcher.Constraint("Equal", 35, 39))
sketch6.addConstraint(Sketcher.Constraint("Equal", 18, 0))
sketch6.addConstraint(Sketcher.Constraint("Equal", 43, 21))
sketch6.addConstraint(Sketcher.Constraint("DistanceX", 2, 1, 2, 2, Q("2.14 mm")))
sketch6.addConstraint(Sketcher.Constraint("DistanceX", 23, 1, 23, 2, Q("0.44 mm")))
sketch6.addConstraint(Sketcher.Constraint("DistanceX", 2, 2, -1, 1, Q("0.2 mm")))
sketch6.addConstraint(Sketcher.Constraint("DistanceX", 21, 2, 22, 2, Q("0.1 mm")))
sketch6.addConstraint(Sketcher.Constraint("DistanceX", 20, 2, -1, 1, Q("1.59 mm")))
sketch6.addConstraint(Sketcher.Constraint("DistanceX", -1, 1, 36, 2, Q("3.49 mm")))
pad6 = body4.newObject("PartDesign::Pad", "Pad005")
pad6.Profile = sketch6
pad6.Length = 2.54
doc.recompute()

chamfer4 = body4.newObject("PartDesign::Chamfer", "Chamfer003")
chamfer4.Base = (pad6, edges_at(pad6, [
    (0.1, 2.54, -1.17),
    (-0.1, 2.54, -1.17),
    (-1.59, 2.54, 0),
    (-1.27, 2.54, -1.27),
    (-2.44, 2.54, -1.17),
    (1, 2.54, 0.27),
    (0.95, 2.54, 0),
    (1, 2.54, -0.27),
    (1.27, 2.54, -0.32),
    (1.54, 2.54, -0.27),
    (1.59, 2.54, 0),
    (1.54, 2.54, 0.27),
    (1.27, 2.54, 0.32),
    (-1.54, 2.54, -0.27),
    (3.54, 2.54, 0.27),
    (3.49, 2.54, 0),
    (3.54, 2.54, -0.27),
    (3.81, 2.54, -0.32),
    (4.08, 2.54, -0.27),
    (4.13, 2.54, 0),
    (4.08, 2.54, 0.27),
    (3.81, 2.54, 0.32),
    (-1.27, 2.54, -0.32),
    (-1, 2.54, -0.27),
    (-0.95, 2.54, 0),
    (-1, 2.54, 0.27),
    (-1.27, 2.54, 0.32),
    (-2.54, 2.54, 0),
    (-2.44, 2.54, 1.17),
    (-1.27, 2.54, 1.27),
    (-0.1, 2.54, 1.17),
    (0.1, 2.54, 1.17),
    (1.27, 2.54, 1.27),
    (2.44, 2.54, 1.17),
    (2.64, 2.54, 1.17),
    (-1.54, 2.54, 0.27),
    (3.81, 2.54, 1.27),
    (4.98, 2.54, 1.17),
    (5.08, 2.54, 0),
    (4.98, 2.54, -1.17),
    (3.81, 2.54, -1.27),
    (2.64, 2.54, -1.17),
    (2.44, 2.54, -1.17),
    (1.27, 2.54, -1.27),
]))
chamfer4.Size = 0.2
doc.recompute()

chamfer5 = body4.newObject("PartDesign::Chamfer", "Chamfer004")
chamfer5.Base = (chamfer4, edges_at(chamfer4, [
    (-2.44, 5.08, -1.17),
    (-1.27, 5.08, -1.27),
    (-0.1, 5.08, -1.17),
    (0.1, 5.08, -1.17),
    (1.27, 5.08, -1.27),
    (2.44, 5.08, -1.17),
    (2.64, 5.08, -1.17),
    (3.81, 5.08, -1.27),
    (4.98, 5.08, -1.17),
    (5.08, 5.08, 0),
    (4.98, 5.08, 1.17),
    (3.81, 5.08, 1.27),
    (2.64, 5.08, 1.17),
    (2.44, 5.08, 1.17),
    (1.27, 5.08, 1.27),
    (0.1, 5.08, 1.17),
    (-0.1, 5.08, 1.17),
    (-1.27, 5.08, 1.27),
    (-2.44, 5.08, 1.17),
    (-2.54, 5.08, 0),
]))
chamfer5.Size = 0.2

doc.recompute()
